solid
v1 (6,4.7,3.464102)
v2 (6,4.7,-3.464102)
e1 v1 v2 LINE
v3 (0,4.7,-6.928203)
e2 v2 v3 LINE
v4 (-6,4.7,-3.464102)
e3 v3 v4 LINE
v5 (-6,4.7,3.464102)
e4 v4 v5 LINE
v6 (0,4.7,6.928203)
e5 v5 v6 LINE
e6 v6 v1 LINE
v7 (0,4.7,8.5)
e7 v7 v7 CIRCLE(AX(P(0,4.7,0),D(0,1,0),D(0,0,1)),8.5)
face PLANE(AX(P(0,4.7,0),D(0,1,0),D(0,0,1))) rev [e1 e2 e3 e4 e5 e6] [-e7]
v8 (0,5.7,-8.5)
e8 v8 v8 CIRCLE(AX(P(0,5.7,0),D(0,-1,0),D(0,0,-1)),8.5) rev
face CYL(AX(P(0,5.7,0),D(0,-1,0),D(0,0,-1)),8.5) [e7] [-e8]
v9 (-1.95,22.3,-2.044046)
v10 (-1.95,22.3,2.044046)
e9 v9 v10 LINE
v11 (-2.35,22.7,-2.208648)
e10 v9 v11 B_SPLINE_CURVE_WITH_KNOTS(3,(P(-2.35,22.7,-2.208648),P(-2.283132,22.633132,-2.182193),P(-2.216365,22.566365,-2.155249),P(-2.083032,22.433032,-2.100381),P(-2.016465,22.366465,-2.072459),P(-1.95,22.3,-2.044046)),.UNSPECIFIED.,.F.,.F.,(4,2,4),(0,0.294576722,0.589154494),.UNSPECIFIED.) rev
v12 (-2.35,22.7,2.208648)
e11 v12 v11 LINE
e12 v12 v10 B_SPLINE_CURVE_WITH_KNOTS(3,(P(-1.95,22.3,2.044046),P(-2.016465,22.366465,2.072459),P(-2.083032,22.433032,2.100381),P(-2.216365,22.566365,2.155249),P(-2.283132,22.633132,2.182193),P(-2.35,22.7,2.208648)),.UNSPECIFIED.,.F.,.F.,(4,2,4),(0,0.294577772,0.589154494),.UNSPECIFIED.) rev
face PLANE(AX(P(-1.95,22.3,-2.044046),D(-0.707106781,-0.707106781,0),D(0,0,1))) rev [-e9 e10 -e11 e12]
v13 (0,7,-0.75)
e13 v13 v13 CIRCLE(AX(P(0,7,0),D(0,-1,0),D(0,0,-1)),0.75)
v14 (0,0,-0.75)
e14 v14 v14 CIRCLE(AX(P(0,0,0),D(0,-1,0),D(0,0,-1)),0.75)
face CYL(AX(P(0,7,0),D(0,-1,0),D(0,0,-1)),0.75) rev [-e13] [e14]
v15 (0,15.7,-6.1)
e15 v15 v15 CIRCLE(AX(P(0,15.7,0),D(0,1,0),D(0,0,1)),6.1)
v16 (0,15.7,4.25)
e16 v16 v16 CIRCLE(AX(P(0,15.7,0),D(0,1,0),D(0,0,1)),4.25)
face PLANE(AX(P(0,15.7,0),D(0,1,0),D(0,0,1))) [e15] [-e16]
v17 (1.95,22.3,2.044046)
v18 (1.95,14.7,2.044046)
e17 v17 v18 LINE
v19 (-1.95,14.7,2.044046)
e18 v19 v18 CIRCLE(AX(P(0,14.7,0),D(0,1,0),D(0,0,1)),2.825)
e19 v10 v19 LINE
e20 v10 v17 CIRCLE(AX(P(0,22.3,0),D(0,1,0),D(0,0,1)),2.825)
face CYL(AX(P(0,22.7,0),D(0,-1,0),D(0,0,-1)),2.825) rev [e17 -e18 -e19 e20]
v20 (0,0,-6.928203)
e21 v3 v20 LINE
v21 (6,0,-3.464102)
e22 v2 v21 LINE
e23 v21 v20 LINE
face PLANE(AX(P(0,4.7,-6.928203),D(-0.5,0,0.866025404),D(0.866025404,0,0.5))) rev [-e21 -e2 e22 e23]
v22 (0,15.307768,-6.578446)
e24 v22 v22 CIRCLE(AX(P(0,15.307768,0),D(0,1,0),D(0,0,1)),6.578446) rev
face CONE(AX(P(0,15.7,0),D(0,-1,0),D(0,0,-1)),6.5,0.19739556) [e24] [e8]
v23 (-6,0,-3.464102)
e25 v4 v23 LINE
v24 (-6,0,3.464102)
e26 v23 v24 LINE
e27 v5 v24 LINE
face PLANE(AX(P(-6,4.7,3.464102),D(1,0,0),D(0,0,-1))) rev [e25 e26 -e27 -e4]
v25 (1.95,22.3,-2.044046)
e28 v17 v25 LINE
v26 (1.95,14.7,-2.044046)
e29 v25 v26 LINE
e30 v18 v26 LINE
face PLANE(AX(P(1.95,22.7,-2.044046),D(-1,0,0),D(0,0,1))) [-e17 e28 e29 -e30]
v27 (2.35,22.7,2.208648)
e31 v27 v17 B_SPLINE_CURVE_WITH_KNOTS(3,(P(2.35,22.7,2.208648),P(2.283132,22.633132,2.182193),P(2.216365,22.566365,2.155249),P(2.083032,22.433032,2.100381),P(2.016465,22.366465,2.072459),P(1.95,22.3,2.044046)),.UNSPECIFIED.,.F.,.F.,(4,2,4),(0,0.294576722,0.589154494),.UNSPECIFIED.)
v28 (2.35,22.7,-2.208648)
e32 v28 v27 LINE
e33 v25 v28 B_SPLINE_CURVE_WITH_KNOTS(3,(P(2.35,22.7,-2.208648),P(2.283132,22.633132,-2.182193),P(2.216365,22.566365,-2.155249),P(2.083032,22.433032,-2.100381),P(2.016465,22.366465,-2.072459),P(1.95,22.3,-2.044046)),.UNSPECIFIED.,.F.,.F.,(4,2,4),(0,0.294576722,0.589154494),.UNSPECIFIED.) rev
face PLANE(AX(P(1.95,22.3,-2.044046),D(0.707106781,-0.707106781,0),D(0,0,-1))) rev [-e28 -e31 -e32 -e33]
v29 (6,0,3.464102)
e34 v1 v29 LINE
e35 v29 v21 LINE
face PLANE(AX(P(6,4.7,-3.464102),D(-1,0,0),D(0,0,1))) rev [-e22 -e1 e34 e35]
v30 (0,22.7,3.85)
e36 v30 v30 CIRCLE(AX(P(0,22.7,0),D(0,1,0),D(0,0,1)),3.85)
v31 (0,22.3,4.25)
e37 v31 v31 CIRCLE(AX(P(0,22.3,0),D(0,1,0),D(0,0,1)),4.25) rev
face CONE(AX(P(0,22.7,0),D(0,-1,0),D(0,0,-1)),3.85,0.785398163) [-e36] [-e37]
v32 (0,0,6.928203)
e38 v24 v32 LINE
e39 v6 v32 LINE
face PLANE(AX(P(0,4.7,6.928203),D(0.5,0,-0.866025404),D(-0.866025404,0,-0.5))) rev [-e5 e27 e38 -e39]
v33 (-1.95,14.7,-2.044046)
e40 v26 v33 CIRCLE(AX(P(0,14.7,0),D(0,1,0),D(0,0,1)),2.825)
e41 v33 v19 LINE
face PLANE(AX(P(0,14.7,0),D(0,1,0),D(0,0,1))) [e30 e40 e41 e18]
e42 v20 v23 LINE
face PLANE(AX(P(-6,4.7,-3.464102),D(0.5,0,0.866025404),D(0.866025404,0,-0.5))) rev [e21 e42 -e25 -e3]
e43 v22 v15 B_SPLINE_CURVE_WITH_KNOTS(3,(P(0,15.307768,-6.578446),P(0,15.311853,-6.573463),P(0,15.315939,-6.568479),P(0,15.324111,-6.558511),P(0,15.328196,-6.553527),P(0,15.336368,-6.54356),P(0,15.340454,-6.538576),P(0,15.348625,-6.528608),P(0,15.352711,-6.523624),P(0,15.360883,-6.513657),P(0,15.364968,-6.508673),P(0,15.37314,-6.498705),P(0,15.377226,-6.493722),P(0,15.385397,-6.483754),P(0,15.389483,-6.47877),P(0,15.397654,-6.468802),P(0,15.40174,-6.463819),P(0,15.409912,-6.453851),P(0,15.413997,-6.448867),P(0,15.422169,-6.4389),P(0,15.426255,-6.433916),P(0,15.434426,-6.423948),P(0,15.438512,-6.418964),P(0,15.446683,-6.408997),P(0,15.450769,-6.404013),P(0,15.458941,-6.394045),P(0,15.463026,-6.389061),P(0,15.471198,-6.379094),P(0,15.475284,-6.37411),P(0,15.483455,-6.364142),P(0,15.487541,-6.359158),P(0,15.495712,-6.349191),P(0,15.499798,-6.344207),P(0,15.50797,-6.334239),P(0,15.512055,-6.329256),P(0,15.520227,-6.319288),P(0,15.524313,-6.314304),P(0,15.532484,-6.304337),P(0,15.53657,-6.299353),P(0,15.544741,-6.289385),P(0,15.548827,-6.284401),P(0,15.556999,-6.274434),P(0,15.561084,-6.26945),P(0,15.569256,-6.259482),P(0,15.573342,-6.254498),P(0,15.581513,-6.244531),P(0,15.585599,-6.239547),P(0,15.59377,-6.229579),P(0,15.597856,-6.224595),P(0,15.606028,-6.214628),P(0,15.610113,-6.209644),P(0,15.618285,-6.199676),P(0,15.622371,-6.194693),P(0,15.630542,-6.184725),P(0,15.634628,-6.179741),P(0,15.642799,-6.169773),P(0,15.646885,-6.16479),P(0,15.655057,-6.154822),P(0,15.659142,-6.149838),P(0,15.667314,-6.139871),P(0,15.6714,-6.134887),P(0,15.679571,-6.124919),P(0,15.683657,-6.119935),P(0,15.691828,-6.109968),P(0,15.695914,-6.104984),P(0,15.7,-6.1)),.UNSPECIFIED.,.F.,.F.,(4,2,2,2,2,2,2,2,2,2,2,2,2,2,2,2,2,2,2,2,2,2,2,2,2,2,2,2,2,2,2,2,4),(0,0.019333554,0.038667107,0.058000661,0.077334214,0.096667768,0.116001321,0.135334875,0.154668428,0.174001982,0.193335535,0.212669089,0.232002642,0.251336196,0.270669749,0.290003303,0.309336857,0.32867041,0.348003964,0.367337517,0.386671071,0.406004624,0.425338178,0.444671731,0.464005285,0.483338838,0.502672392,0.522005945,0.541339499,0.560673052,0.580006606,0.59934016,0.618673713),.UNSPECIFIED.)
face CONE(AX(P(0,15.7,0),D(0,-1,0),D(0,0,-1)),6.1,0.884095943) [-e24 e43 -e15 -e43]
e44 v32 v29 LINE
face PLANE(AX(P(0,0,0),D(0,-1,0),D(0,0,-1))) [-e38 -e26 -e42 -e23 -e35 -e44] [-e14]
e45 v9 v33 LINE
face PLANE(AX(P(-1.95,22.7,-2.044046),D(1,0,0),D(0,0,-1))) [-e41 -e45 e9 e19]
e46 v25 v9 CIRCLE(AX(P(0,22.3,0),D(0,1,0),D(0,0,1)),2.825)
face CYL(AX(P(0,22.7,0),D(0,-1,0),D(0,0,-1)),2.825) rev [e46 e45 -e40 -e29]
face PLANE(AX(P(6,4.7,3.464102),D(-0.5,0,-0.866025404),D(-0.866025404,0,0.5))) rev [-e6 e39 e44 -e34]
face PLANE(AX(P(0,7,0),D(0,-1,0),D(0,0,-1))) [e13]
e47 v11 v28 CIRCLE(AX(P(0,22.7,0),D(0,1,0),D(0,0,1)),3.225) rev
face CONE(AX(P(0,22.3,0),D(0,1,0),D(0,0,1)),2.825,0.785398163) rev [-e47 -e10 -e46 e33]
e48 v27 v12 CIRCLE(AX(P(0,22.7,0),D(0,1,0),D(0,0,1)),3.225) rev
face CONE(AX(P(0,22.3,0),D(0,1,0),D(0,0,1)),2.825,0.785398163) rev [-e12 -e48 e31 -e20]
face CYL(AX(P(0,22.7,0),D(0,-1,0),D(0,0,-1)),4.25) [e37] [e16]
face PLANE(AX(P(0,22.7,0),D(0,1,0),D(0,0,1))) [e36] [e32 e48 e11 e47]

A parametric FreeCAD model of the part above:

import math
import FreeCAD as App
import Part
import Sketcher
from FreeCAD import Vector
Q = App.Units.Quantity


def edges_at(feature, points):
    """Names of the edges that pass closest to the given points."""
    edges = feature.Shape.Edges
    near = lambda p: min(range(len(edges)), key=lambda i: edges[i].distToShape(Part.Vertex(*p))[0])
    return sorted({f"Edge{near(p) + 1}" for p in points})


def add_polygon(sketch, points):
    """Adds a closed chain of lines whose ends are joined by coincident constraints."""
    first, n = sketch.GeometryCount, len(points)
    for a, b in zip(points, points[1:] + points[:1]):
        sketch.addGeometry(Part.LineSegment(App.Vector(*a, 0), App.Vector(*b, 0)), False)
    for i in range(n):
        sketch.addConstraint(Sketcher.Constraint("Coincident", first + i, 2, first + (i + 1) % n, 1))

doc = App.newDocument("Part")
params = doc.addObject("Spreadsheet::Sheet", "Params")
for row, (alias, value) in enumerate([
    ("pad1_length", "4.7 mm"),
    ("sketch2_diameter", "17 mm"),
    ("pad2_length", "1 mm"),
    ("sketch3_diameter", "13 mm"),
    ("sketch4_diameter", "17 mm"),
    ("sketch5_diameter", "8.5 mm"),
    ("pad3_length", "7 mm"),
    ("chamfer_size", "0.4 mm"),
    ("sketch6_diameter", "1.5 mm"),
    ("pocket1_length", "7 mm"),
    ("pocket2_length", "1 mm"),
], start=1):
    params.set(f"A{row}", alias)
    params.set(f"B{row}", "=" + value)
    params.setAlias(f"B{row}", alias)

body = doc.addObject("PartDesign::Body", "Body")

sketch1 = body.newObject("Sketcher::SketchObject", "Sketch")
sketch1.AttachmentSupport = (doc.getObject("XZ_Plane"), [""])
sketch1.MapMode = "FlatFace"
add_polygon(sketch1, [(6, -3), (0, -7), (-6, -3), (-6, 3), (0, 7), (6, 3)])
sketch1.addConstraint([
    Sketcher.Constraint("Vertical", 2),
    Sketcher.Constraint("Vertical", 5),
    Sketcher.Constraint("Symmetric", 0, 2, 3, 2, -1, 1),
    Sketcher.Constraint("Symmetric", 1, 2, 4, 2, -1, 1),
    Sketcher.Constraint("PointOnObject", 0, 2, -2),
    Sketcher.Constraint("Parallel", 0, 3),
    Sketcher.Constraint("Horizontal", 2, 2, 4, 2),
    Sketcher.Constraint("Angle", 0, Q("-150 deg")),
    Sketcher.Constraint("DistanceX", 1, 2, -1, 1, Q("6 mm")),
    Sketcher.Constraint("DistanceY", 1, 2, -1, 1, Q("3.464102 mm")),
])
pad1 = body.newObject("PartDesign::Pad", "Pad")
pad1.Profile = sketch1
pad1.setExpression("Length", "Params.pad1_length")
pad1.Reversed = True

sketch2 = body.newObject("Sketcher::SketchObject", "Sketch001")
sketch2.AttachmentSupport = (doc.getObject("XZ_Plane"), [""])
sketch2.MapMode = "FlatFace"
sketch2.AttachmentOffset = App.Placement(Vector(0, 0, -4.7), App.Rotation())
sketch2.addGeometry(Part.Circle(Vector(0, 0, 0), Vector(0, 0, 1), 8), False)
sketch2.addConstraint([
    Sketcher.Constraint("Coincident", 0, 3, -1, 1),
    Sketcher.Constraint("Diameter", 0, Q("17 mm")),
])
sketch2.setExpression("Constraints[1]", "Params.sketch2_diameter")
pad2 = body.newObject("PartDesign::Pad", "Pad001")
pad2.Profile = sketch2
pad2.setExpression("Length", "Params.pad2_length")
pad2.Reversed = True

sketch3 = body.newObject("Sketcher::SketchObject", "Sketch002")
sketch3.AttachmentSupport = (doc.getObject("XZ_Plane"), [""])
sketch3.MapMode = "FlatFace"
sketch3.AttachmentOffset = App.Placement(Vector(0, 0, -15.7), App.Rotation())
sketch3.addGeometry(Part.Circle(Vector(0, 0, 0), Vector(0, 0, 1), 6), False)
sketch3.addConstraint([
    Sketcher.Constraint("Coincident", 0, 3, -1, 1),
    Sketcher.Constraint("Diameter", 0, Q("13 mm")),
])
sketch3.setExpression("Constraints[1]", "Params.sketch3_diameter")

sketch4 = body.newObject("Sketcher::SketchObject", "Sketch003")
sketch4.AttachmentSupport = (doc.getObject("XZ_Plane"), [""])
sketch4.MapMode = "FlatFace"
sketch4.AttachmentOffset = App.Placement(Vector(0, 0, -5.7), App.Rotation())
sketch4.addGeometry(Part.Circle(Vector(0, 0, 0), Vector(0, 0, 1), 8), False)
sketch4.addConstraint([
    Sketcher.Constraint("Coincident", 0, 3, -1, 1),
    Sketcher.Constraint("Diameter", 0, Q("17 mm")),
])
sketch4.setExpression("Constraints[1]", "Params.sketch4_diameter")

additiveloft = body.newObject("PartDesign::AdditiveLoft", "AdditiveLoft")
additiveloft.Profile = sketch3
additiveloft.Sections = [sketch4]

sketch5 = body.newObject("Sketcher::SketchObject", "Sketch004")
sketch5.AttachmentSupport = (doc.getObject("XZ_Plane"), [""])
sketch5.MapMode = "FlatFace"
sketch5.AttachmentOffset = App.Placement(Vector(0, 0, -15.7), App.Rotation())
sketch5.addGeometry([
    Part.Circle(Vector(0, 0, 0), Vector(0, 0, 1), 4.2),
    Part.LineSegment(Vector(-1.9, 2, 0), Vector(-1.9, -2, 0)),
    Part.ArcOfCircle(Part.Circle(Vector(0, 0, 0), Vector(0, 0, 1), 2.8), math.radians(-134), math.radians(-46)),
    Part.LineSegment(Vector(1.9, -2, 0), Vector(1.9, 2, 0)),
    Part.ArcOfCircle(Part.Circle(Vector(0, 0, 0), Vector(0, 0, 1), 2.8), math.radians(46), math.radians(134)),
], False)
sketch5.addConstraint([
    Sketcher.Constraint("Coincident", 1, 2, 2, 1),
    Sketcher.Constraint("Coincident", 2, 2, 3, 1),
    Sketcher.Constraint("Coincident", 3, 2, 4, 1),
    Sketcher.Constraint("Coincident", 4, 2, 1, 1),
    Sketcher.Constraint("Vertical", 1),
    Sketcher.Constraint("Vertical", 3),
    Sketcher.Constraint("Coincident", 0, 3, -1, 1),
    Sketcher.Constraint("Coincident", 2, 3, -1, 1),
    Sketcher.Constraint("Coincident", 4, 3, -1, 1),
    Sketcher.Constraint("Equal", 2, 4),
    Sketcher.Constraint("Horizontal", 1, 2, 2, 2),
    Sketcher.Constraint("Diameter", 0, Q("8.5 mm")),
    Sketcher.Constraint("Radius", 2, Q("2.825 mm")),
    Sketcher.Constraint("DistanceX", 1, 2, 2, 2, Q("3.9 mm")),
])
sketch5.setExpression("Constraints[11]", "Params.sketch5_diameter")
pad3 = body.newObject("PartDesign::Pad", "Pad002")
pad3.Profile = sketch5
pad3.setExpression("Length", "Params.pad3_length")
pad3.Reversed = True
doc.recompute()

chamfer = body.newObject("PartDesign::Chamfer", "Chamfer")
chamfer.Base = (pad3, edges_at(pad3, [
    (-6.5, 15.7, 0),
    (0, 22.7, -4.25),
    (0, 22.7, -2.825),
    (-1.95, 22.7, 0),
    (0, 22.7, 2.825),
    (1.95, 22.7, 0),
]))
chamfer.setExpression("Size", "Params.chamfer_size")

sketch6 = body.newObject("Sketcher::SketchObject", "Sketch005")
sketch6.AttachmentSupport = (doc.getObject("XZ_Plane"), [""])
sketch6.MapMode = "FlatFace"
sketch6.addGeometry(Part.Circle(Vector(0, 0, 0), Vector(0, 0, 1), 0.8), False)
sketch6.addConstraint([
    Sketcher.Constraint("Coincident", 0, 3, -1, 1),
    Sketcher.Constraint("Diameter", 0, Q("1.5 mm")),
])
sketch6.setExpression("Constraints[1]", "Params.sketch6_diameter")
pocket1 = body.newObject("PartDesign::Pocket", "Pocket")
pocket1.Profile = sketch6
pocket1.setExpression("Length", "Params.pocket1_length")

sketch7 = body.newObject("Sketcher::SketchObject", "Sketch006")
sketch7.AttachmentSupport = (doc.getObject("XZ_Plane"), [""])
sketch7.MapMode = "FlatFace"
sketch7.AttachmentOffset = App.Placement(Vector(0, 0, -14.7), App.Rotation())
sketch7.addGeometry([
    Part.LineSegment(Vector(1.9, 2, 0), Vector(1.9, -2, 0)),
    Part.ArcOfCircle(Part.Circle(Vector(0, 0, 0), Vector(0, 0, 1), 2.8), math.radians(-134), math.radians(-46)),
    Part.LineSegment(Vector(-1.9, -2, 0), Vector(-1.9, 2, 0)),
    Part.ArcOfCircle(Part.Circle(Vector(0, 0, 0), Vector(0, 0, 1), 2.8), math.radians(46), math.radians(134)),
], False)
sketch7.addConstraint([
    Sketcher.Constraint("Coincident", 0, 2, 1, 2),
    Sketcher.Constraint("Coincident", 1, 1, 2, 1),
    Sketcher.Constraint("Coincident", 2, 2, 3, 2),
    Sketcher.Constraint("Coincident", 3, 1, 0, 1),
    Sketcher.Constraint("Vertical", 0),
    Sketcher.Constraint("Vertical", 2),
    Sketcher.Constraint("Coincident", 1, 3, -1, 1),
    Sketcher.Constraint("Coincident", 3, 3, -1, 1),
    Sketcher.Constraint("Equal", 1, 3),
    Sketcher.Constraint("Horizontal", 0, 2, 1, 1),
    Sketcher.Constraint("Radius", 1, Q("2.825 mm")),
    Sketcher.Constraint("DistanceX", 1, 1, 0, 2, Q("3.9 mm")),
])
pocket2 = body.newObject("PartDesign::Pocket", "Pocket001")
pocket2.Profile = sketch7
pocket2.setExpression("Length", "Params.pocket2_length")

doc.recompute()
